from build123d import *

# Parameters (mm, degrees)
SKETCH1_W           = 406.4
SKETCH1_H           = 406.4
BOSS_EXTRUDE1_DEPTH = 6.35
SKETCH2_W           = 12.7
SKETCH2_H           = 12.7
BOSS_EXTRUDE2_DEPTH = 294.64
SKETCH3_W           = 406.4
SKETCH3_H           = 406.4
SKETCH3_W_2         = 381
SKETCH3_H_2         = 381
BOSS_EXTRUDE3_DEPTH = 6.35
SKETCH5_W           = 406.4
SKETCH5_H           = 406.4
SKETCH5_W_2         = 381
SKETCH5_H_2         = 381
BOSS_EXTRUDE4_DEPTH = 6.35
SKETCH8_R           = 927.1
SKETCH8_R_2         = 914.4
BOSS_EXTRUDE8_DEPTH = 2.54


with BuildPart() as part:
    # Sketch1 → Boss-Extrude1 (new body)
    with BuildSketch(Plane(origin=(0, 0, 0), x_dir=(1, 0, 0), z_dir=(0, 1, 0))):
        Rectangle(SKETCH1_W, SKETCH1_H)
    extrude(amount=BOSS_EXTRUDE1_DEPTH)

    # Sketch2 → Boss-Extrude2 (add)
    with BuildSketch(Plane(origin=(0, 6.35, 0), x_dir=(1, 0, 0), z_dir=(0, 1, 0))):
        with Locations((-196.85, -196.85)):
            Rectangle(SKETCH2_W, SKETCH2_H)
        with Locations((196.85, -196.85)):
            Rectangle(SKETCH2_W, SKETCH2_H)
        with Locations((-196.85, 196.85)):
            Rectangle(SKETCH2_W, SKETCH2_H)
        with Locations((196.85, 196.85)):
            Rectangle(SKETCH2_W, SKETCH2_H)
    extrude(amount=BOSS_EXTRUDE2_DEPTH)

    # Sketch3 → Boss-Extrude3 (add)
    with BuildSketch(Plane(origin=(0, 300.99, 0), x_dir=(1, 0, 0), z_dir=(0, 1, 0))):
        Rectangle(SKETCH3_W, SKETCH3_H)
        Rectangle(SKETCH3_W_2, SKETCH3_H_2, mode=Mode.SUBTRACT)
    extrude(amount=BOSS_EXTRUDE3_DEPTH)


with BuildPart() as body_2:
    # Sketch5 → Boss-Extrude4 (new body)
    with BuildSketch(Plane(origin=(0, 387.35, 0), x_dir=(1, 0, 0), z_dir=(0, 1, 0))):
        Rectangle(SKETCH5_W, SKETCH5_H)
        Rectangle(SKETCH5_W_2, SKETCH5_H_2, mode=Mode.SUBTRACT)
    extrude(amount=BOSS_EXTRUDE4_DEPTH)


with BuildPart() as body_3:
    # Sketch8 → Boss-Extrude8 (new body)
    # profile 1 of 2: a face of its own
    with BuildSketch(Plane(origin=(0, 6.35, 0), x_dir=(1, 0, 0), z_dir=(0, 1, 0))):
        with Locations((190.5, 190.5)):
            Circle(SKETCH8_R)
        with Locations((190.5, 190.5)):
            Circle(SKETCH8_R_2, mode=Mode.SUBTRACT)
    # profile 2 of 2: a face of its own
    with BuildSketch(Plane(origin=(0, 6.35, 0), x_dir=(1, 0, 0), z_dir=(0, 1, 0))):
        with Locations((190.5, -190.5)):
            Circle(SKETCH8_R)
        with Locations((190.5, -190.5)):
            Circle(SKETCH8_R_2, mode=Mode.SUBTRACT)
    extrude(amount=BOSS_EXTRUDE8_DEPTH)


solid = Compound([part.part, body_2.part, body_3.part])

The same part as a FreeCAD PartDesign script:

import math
import FreeCAD as App
import Part
import Sketcher

V = App.Vector
Q = App.Units.Quantity

doc = App.newDocument("Part")
params = doc.addObject("Spreadsheet::Sheet", "Params")
for row, (alias, value) in enumerate([
    ("sketch1_width", "16 in"),
    ("pad1_length", "0.25 in"),
    ("sketch2_width", "0.5 in"),
    ("pad2_length", "11.6 in"),
    ("sketch3_width", "16 in"),
    ("sketch3_width2", "15 in"),
    ("pad3_length", "0.25 in"),
    ("sketch4_width", "16 in"),
    ("sketch4_width2", "15 in"),
    ("pad4_length", "0.25 in"),
    ("sketch5_radius", "36 in"),
    ("sketch5_radius2", "36.5 in"),
    ("pad5_length", "0.1 in"),
], start=1):
    params.set(f"A{row}", alias)
    params.set(f"B{row}", "=" + value)
    params.setAlias(f"B{row}", alias)

body = doc.addObject("PartDesign::Body", "Body")

# Sketch on XZ plane
sketch1 = body.newObject("Sketcher::SketchObject", "Sketch")
sketch1.AttachmentSupport = (doc.getObject("XZ_Plane"), [""])
sketch1.MapMode = "FlatFace"
sketch1.addGeometry([
    Part.LineSegment(V(-203, -203, 0), V(-203, 203, 0)),
    Part.LineSegment(V(-203, 203, 0), V(203, 203, 0)),
    Part.LineSegment(V(203, 203, 0), V(203, -203, 0)),
    Part.LineSegment(V(203, -203, 0), V(-203, -203, 0)),
], False)
sketch1.addConstraint([
    Sketcher.Constraint("Coincident", 0, 2, 1, 1),
    Sketcher.Constraint("Coincident", 1, 2, 2, 1),
    Sketcher.Constraint("Coincident", 2, 2, 3, 1),
    Sketcher.Constraint("Coincident", 3, 2, 0, 1),
    Sketcher.Constraint("Vertical", 0),
    Sketcher.Constraint("Horizontal", 1),
    Sketcher.Constraint("Vertical", 2),
    Sketcher.Constraint("Horizontal", 3),
    Sketcher.Constraint("Symmetric", 0, 2, 2, 2, -1, 1),
    Sketcher.Constraint("Equal", 3, 0),
    Sketcher.Constraint("DistanceX", 1, 1, 1, 2, Q("16 in")),
])
sketch1.setExpression("Constraints[10]", "Params.sketch1_width")
pad1 = body.newObject("PartDesign::Pad", "Pad")
pad1.Profile = sketch1
pad1.setExpression("Length", "Params.pad1_length")
pad1.Reversed = True

# Sketch on XZ plane
sketch2 = body.newObject("Sketcher::SketchObject", "Sketch001")
sketch2.AttachmentSupport = (doc.getObject("XZ_Plane"), [""])
sketch2.MapMode = "FlatFace"
sketch2.AttachmentOffset = App.Placement(V(0, 0, -0.25 * 25.4), App.Rotation())
sketch2.addGeometry([
    Part.LineSegment(V(-203, 190, 0), V(-203, 203, 0)),  # 0
    Part.LineSegment(V(-203, 203, 0), V(-190, 203, 0)),  # 1
    Part.LineSegment(V(-190, 203, 0), V(-190, 190, 0)),  # 2
    Part.LineSegment(V(-190, 190, 0), V(-203, 190, 0)),  # 3
    Part.LineSegment(V(190, 190, 0), V(190, 203, 0)),  # 4
    Part.LineSegment(V(190, 203, 0), V(203, 203, 0)),  # 5
    Part.LineSegment(V(203, 203, 0), V(203, 190, 0)),  # 6
    Part.LineSegment(V(203, 190, 0), V(190, 190, 0)),  # 7
    Part.LineSegment(V(-203, -203, 0), V(-203, -190, 0)),  # 8
    Part.LineSegment(V(-203, -190, 0), V(-190, -190, 0)),  # 9
    Part.LineSegment(V(-190, -190, 0), V(-190, -203, 0)),  # 10
    Part.LineSegment(V(-190, -203, 0), V(-203, -203, 0)),  # 11
    Part.LineSegment(V(190, -203, 0), V(190, -190, 0)),  # 12
    Part.LineSegment(V(190, -190, 0), V(203, -190, 0)),  # 13
    Part.LineSegment(V(203, -190, 0), V(203, -203, 0)),  # 14
    Part.LineSegment(V(203, -203, 0), V(190, -203, 0)),  # 15
], False)
sketch2.addConstraint([
    Sketcher.Constraint("Coincident", 0, 2, 1, 1),
    Sketcher.Constraint("Coincident", 1, 2, 2, 1),
    Sketcher.Constraint("Coincident", 2, 2, 3, 1),
    Sketcher.Constraint("Coincident", 3, 2, 0, 1),
    Sketcher.Constraint("Coincident", 4, 2, 5, 1),
    Sketcher.Constraint("Coincident", 5, 2, 6, 1),
    Sketcher.Constraint("Coincident", 6, 2, 7, 1),
    Sketcher.Constraint("Coincident", 7, 2, 4, 1),
    Sketcher.Constraint("Coincident", 8, 2, 9, 1),
    Sketcher.Constraint("Coincident", 9, 2, 10, 1),
    Sketcher.Constraint("Coincident", 10, 2, 11, 1),
    Sketcher.Constraint("Coincident", 11, 2, 8, 1),
    Sketcher.Constraint("Coincident", 12, 2, 13, 1),
    Sketcher.Constraint("Coincident", 13, 2, 14, 1),
    Sketcher.Constraint("Coincident", 14, 2, 15, 1),
    Sketcher.Constraint("Coincident", 15, 2, 12, 1),
    Sketcher.Constraint("Vertical", 0),
    Sketcher.Constraint("Horizontal", 1),
    Sketcher.Constraint("Vertical", 2),
    Sketcher.Constraint("Horizontal", 3),
    Sketcher.Constraint("Vertical", 4),
    Sketcher.Constraint("Horizontal", 5),
    Sketcher.Constraint("Vertical", 6),
    Sketcher.Constraint("Horizontal", 7),
    Sketcher.Constraint("Vertical", 8),
    Sketcher.Constraint("Horizontal", 9),
    Sketcher.Constraint("Vertical", 10),
    Sketcher.Constraint("Horizontal", 11),
    Sketcher.Constraint("Vertical", 12),
    Sketcher.Constraint("Horizontal", 13),
    Sketcher.Constraint("Vertical", 14),
    Sketcher.Constraint("Horizontal", 15),
    Sketcher.Constraint("Symmetric", 6, 2, 8, 2, -1, 1),
    Sketcher.Constraint("Symmetric", 4, 2, 10, 2, -1, 1),
    Sketcher.Constraint("Symmetric", 2, 2, 12, 2, -1, 1),
    Sketcher.Constraint("Symmetric", 0, 2, 14, 2, -1, 1),
    Sketcher.Constraint("Symmetric", 1, 2, 4, 2, -2),
    Sketcher.Constraint("Symmetric", 3, 2, 6, 2, -2),
    Sketcher.Constraint("Equal", 15, 0),
    Sketcher.Constraint("DistanceX", 1, 1, 1, 2, Q("0.5 in")),
    Sketcher.Constraint("DistanceX", 0, 2, -1, 1, Q("8 in")),
    Sketcher.Constraint("DistanceY", -1, 1, 0, 2, Q("8 in")),
])
sketch2.setExpression("Constraints[39]", "Params.sketch2_width")
pad2 = body.newObject("PartDesign::Pad", "Pad001")
pad2.Profile = sketch2
pad2.setExpression("Length", "Params.pad2_length")
pad2.Reversed = True

# Sketch on XZ plane
sketch3 = body.newObject("Sketcher::SketchObject", "Sketch002")
sketch3.AttachmentSupport = (doc.getObject("XZ_Plane"), [""])
sketch3.MapMode = "FlatFace"
sketch3.AttachmentOffset = App.Placement(V(0, 0, -11.85 * 25.4), App.Rotation())
sketch3.addGeometry([
    Part.LineSegment(V(-203, -203, 0), V(-203, 203, 0)),  # 0
    Part.LineSegment(V(-203, 203, 0), V(203, 203, 0)),  # 1
    Part.LineSegment(V(203, 203, 0), V(203, -203, 0)),  # 2
    Part.LineSegment(V(203, -203, 0), V(-203, -203, 0)),  # 3
    Part.LineSegment(V(190, 190, 0), V(-190, 190, 0)),  # 4
    Part.LineSegment(V(-190, 190, 0), V(-190, -190, 0)),  # 5
    Part.LineSegment(V(-190, -190, 0), V(190, -190, 0)),  # 6
    Part.LineSegment(V(190, -190, 0), V(190, 190, 0)),  # 7
], False)
sketch3.addConstraint([
    Sketcher.Constraint("Coincident", 0, 2, 1, 1),
    Sketcher.Constraint("Coincident", 1, 2, 2, 1),
    Sketcher.Constraint("Coincident", 2, 2, 3, 1),
    Sketcher.Constraint("Coincident", 3, 2, 0, 1),
    Sketcher.Constraint("Coincident", 4, 2, 5, 1),
    Sketcher.Constraint("Coincident", 5, 2, 6, 1),
    Sketcher.Constraint("Coincident", 6, 2, 7, 1),
    Sketcher.Constraint("Coincident", 7, 2, 4, 1),
    Sketcher.Constraint("Vertical", 0),
    Sketcher.Constraint("Horizontal", 1),
    Sketcher.Constraint("Vertical", 2),
    Sketcher.Constraint("Horizontal", 3),
    Sketcher.Constraint("Horizontal", 4),
    Sketcher.Constraint("Vertical", 5),
    Sketcher.Constraint("Horizontal", 6),
    Sketcher.Constraint("Vertical", 7),
    Sketcher.Constraint("Symmetric", 0, 2, 2, 2, -1, 1),
    Sketcher.Constraint("Symmetric", 4, 2, 6, 2, -1, 1),
    Sketcher.Constraint("Equal", 3, 0),
    Sketcher.Constraint("Equal", 6, 5),
    Sketcher.Constraint("DistanceX", 1, 1, 1, 2, Q("16 in")),
    Sketcher.Constraint("DistanceX", 4, 2, 4, 1, Q("15 in")),
])
sketch3.setExpression("Constraints[20]", "Params.sketch3_width")
sketch3.setExpression("Constraints[21]", "Params.sketch3_width2")
pad3 = body.newObject("PartDesign::Pad", "Pad002")
pad3.Profile = sketch3
pad3.setExpression("Length", "Params.pad3_length")
pad3.Reversed = True
body2 = doc.addObject("PartDesign::Body", "Body001")

# Sketch on XZ plane
sketch4 = body2.newObject("Sketcher::SketchObject", "Sketch003")
sketch4.AttachmentSupport = (doc.getObject("XZ_Plane001"), [""])
sketch4.MapMode = "FlatFace"
sketch4.AttachmentOffset = App.Placement(V(0, 0, -15.25 * 25.4), App.Rotation())
sketch4.addGeometry([
    Part.LineSegment(V(-203, -203, 0), V(-203, 203, 0)),  # 0
    Part.LineSegment(V(-203, 203, 0), V(203, 203, 0)),  # 1
    Part.LineSegment(V(203, 203, 0), V(203, -203, 0)),  # 2
    Part.LineSegment(V(203, -203, 0), V(-203, -203, 0)),  # 3
    Part.LineSegment(V(190, 190, 0), V(-190, 190, 0)),  # 4
    Part.LineSegment(V(-190, 190, 0), V(-190, -190, 0)),  # 5
    Part.LineSegment(V(-190, -190, 0), V(190, -190, 0)),  # 6
    Part.LineSegment(V(190, -190, 0), V(190, 190, 0)),  # 7
], False)
sketch4.addConstraint([
    Sketcher.Constraint("Coincident", 0, 2, 1, 1),
    Sketcher.Constraint("Coincident", 1, 2, 2, 1),
    Sketcher.Constraint("Coincident", 2, 2, 3, 1),
    Sketcher.Constraint("Coincident", 3, 2, 0, 1),
    Sketcher.Constraint("Coincident", 4, 2, 5, 1),
    Sketcher.Constraint("Coincident", 5, 2, 6, 1),
    Sketcher.Constraint("Coincident", 6, 2, 7, 1),
    Sketcher.Constraint("Coincident", 7, 2, 4, 1),
    Sketcher.Constraint("Vertical", 0),
    Sketcher.Constraint("Horizontal", 1),
    Sketcher.Constraint("Vertical", 2),
    Sketcher.Constraint("Horizontal", 3),
    Sketcher.Constraint("Horizontal", 4),
    Sketcher.Constraint("Vertical", 5),
    Sketcher.Constraint("Horizontal", 6),
    Sketcher.Constraint("Vertical", 7),
    Sketcher.Constraint("Symmetric", 0, 2, 2, 2, -1, 1),
    Sketcher.Constraint("Symmetric", 4, 2, 6, 2, -1, 1),
    Sketcher.Constraint("Equal", 3, 0),
    Sketcher.Constraint("Equal", 6, 5),
    Sketcher.Constraint("DistanceX", 1, 1, 1, 2, Q("16 in")),
    Sketcher.Constraint("DistanceX", 4, 2, 4, 1, Q("15 in")),
])
sketch4.setExpression("Constraints[20]", "Params.sketch4_width")
sketch4.setExpression("Constraints[21]", "Params.sketch4_width2")
pad4 = body2.newObject("PartDesign::Pad", "Pad003")
pad4.Profile = sketch4
pad4.setExpression("Length", "Params.pad4_length")
pad4.Reversed = True
body3 = doc.addObject("PartDesign::Body", "Body002")

# Sketch on XZ plane
sketch5 = body3.newObject("Sketcher::SketchObject", "Sketch004")
sketch5.AttachmentSupport = (doc.getObject("XZ_Plane002"), [""])
sketch5.MapMode = "FlatFace"
sketch5.AttachmentOffset = App.Placement(V(0, 0, -0.25 * 25.4), App.Rotation())
sketch5.addGeometry([
    Part.ArcOfCircle(Part.Circle(V(190, -190, 0), V(0, 0, 1), 927), math.radians(168), math.radians(372)),  # 0
    Part.ArcOfCircle(Part.Circle(V(190, 190, 0), V(0, 0, 1), 927), math.radians(-12), math.radians(192)),  # 1
    Part.ArcOfCircle(Part.Circle(V(190, 190, 0), V(0, 0, 1), 927), math.radians(-166), math.radians(-14)),  # 2
    Part.ArcOfCircle(Part.Circle(V(190, -190, 0), V(0, 0, 1), 914), math.radians(170), math.radians(370)),  # 3
    Part.ArcOfCircle(Part.Circle(V(190, -190, 0), V(0, 0, 1), 927), math.radians(14), math.radians(166)),  # 4
    Part.ArcOfCircle(Part.Circle(V(190, 190, 0), V(0, 0, 1), 914), math.radians(-10), math.radians(190)),  # 5
    Part.ArcOfCircle(Part.Circle(V(190, -190, 0), V(0, 0, 1), 914), math.radians(12), math.radians(168)),  # 6
    Part.ArcOfCircle(Part.Circle(V(190, 190, 0), V(0, 0, 1), 914), math.radians(-168), math.radians(-12)),  # 7
], False)
sketch5.addConstraint([
    Sketcher.Constraint("Coincident", 0, 1, 1, 2),
    Sketcher.Constraint("Coincident", 1, 1, 0, 2),
    Sketcher.Constraint("Coincident", 2, 1, 3, 1),
    Sketcher.Constraint("Coincident", 3, 2, 2, 2),
    Sketcher.Constraint("Coincident", 4, 1, 5, 1),
    Sketcher.Constraint("Coincident", 5, 2, 4, 2),
    Sketcher.Constraint("Coincident", 6, 1, 7, 2),
    Sketcher.Constraint("Coincident", 7, 1, 6, 2),
    Sketcher.Constraint("Coincident", 2, 3, 1, 3),
    Sketcher.Constraint("Coincident", 3, 3, 0, 3),
    Sketcher.Constraint("Coincident", 4, 3, 0, 3),
    Sketcher.Constraint("Coincident", 5, 3, 1, 3),
    Sketcher.Constraint("Coincident", 6, 3, 0, 3),
    Sketcher.Constraint("Coincident", 7, 3, 1, 3),
    Sketcher.Constraint("Equal", 0, 1),
    Sketcher.Constraint("Equal", 1, 2),
    Sketcher.Constraint("Equal", 2, 4),
    Sketcher.Constraint("Equal", 3, 5),
    Sketcher.Constraint("Equal", 5, 6),
    Sketcher.Constraint("Equal", 6, 7),
    Sketcher.Constraint("Symmetric", 0, 3, 1, 3, -1),
    Sketcher.Constraint("Radius", 3, Q("36 in")),
    Sketcher.Constraint("Radius", 0, Q("36.5 in")),
    Sketcher.Constraint("DistanceY", 0, 3, 1, 3, Q("15 in")),
    Sketcher.Constraint("DistanceX", -1, 1, 0, 3, Q("7.5 in")),
])
sketch5.setExpression("Constraints[21]", "Params.sketch5_radius")
sketch5.setExpression("Constraints[22]", "Params.sketch5_radius2")
pad5 = body3.newObject("PartDesign::Pad", "Pad004")
pad5.Profile = sketch5
pad5.setExpression("Length", "Params.pad5_length")
pad5.Reversed = True

doc.recompute()
